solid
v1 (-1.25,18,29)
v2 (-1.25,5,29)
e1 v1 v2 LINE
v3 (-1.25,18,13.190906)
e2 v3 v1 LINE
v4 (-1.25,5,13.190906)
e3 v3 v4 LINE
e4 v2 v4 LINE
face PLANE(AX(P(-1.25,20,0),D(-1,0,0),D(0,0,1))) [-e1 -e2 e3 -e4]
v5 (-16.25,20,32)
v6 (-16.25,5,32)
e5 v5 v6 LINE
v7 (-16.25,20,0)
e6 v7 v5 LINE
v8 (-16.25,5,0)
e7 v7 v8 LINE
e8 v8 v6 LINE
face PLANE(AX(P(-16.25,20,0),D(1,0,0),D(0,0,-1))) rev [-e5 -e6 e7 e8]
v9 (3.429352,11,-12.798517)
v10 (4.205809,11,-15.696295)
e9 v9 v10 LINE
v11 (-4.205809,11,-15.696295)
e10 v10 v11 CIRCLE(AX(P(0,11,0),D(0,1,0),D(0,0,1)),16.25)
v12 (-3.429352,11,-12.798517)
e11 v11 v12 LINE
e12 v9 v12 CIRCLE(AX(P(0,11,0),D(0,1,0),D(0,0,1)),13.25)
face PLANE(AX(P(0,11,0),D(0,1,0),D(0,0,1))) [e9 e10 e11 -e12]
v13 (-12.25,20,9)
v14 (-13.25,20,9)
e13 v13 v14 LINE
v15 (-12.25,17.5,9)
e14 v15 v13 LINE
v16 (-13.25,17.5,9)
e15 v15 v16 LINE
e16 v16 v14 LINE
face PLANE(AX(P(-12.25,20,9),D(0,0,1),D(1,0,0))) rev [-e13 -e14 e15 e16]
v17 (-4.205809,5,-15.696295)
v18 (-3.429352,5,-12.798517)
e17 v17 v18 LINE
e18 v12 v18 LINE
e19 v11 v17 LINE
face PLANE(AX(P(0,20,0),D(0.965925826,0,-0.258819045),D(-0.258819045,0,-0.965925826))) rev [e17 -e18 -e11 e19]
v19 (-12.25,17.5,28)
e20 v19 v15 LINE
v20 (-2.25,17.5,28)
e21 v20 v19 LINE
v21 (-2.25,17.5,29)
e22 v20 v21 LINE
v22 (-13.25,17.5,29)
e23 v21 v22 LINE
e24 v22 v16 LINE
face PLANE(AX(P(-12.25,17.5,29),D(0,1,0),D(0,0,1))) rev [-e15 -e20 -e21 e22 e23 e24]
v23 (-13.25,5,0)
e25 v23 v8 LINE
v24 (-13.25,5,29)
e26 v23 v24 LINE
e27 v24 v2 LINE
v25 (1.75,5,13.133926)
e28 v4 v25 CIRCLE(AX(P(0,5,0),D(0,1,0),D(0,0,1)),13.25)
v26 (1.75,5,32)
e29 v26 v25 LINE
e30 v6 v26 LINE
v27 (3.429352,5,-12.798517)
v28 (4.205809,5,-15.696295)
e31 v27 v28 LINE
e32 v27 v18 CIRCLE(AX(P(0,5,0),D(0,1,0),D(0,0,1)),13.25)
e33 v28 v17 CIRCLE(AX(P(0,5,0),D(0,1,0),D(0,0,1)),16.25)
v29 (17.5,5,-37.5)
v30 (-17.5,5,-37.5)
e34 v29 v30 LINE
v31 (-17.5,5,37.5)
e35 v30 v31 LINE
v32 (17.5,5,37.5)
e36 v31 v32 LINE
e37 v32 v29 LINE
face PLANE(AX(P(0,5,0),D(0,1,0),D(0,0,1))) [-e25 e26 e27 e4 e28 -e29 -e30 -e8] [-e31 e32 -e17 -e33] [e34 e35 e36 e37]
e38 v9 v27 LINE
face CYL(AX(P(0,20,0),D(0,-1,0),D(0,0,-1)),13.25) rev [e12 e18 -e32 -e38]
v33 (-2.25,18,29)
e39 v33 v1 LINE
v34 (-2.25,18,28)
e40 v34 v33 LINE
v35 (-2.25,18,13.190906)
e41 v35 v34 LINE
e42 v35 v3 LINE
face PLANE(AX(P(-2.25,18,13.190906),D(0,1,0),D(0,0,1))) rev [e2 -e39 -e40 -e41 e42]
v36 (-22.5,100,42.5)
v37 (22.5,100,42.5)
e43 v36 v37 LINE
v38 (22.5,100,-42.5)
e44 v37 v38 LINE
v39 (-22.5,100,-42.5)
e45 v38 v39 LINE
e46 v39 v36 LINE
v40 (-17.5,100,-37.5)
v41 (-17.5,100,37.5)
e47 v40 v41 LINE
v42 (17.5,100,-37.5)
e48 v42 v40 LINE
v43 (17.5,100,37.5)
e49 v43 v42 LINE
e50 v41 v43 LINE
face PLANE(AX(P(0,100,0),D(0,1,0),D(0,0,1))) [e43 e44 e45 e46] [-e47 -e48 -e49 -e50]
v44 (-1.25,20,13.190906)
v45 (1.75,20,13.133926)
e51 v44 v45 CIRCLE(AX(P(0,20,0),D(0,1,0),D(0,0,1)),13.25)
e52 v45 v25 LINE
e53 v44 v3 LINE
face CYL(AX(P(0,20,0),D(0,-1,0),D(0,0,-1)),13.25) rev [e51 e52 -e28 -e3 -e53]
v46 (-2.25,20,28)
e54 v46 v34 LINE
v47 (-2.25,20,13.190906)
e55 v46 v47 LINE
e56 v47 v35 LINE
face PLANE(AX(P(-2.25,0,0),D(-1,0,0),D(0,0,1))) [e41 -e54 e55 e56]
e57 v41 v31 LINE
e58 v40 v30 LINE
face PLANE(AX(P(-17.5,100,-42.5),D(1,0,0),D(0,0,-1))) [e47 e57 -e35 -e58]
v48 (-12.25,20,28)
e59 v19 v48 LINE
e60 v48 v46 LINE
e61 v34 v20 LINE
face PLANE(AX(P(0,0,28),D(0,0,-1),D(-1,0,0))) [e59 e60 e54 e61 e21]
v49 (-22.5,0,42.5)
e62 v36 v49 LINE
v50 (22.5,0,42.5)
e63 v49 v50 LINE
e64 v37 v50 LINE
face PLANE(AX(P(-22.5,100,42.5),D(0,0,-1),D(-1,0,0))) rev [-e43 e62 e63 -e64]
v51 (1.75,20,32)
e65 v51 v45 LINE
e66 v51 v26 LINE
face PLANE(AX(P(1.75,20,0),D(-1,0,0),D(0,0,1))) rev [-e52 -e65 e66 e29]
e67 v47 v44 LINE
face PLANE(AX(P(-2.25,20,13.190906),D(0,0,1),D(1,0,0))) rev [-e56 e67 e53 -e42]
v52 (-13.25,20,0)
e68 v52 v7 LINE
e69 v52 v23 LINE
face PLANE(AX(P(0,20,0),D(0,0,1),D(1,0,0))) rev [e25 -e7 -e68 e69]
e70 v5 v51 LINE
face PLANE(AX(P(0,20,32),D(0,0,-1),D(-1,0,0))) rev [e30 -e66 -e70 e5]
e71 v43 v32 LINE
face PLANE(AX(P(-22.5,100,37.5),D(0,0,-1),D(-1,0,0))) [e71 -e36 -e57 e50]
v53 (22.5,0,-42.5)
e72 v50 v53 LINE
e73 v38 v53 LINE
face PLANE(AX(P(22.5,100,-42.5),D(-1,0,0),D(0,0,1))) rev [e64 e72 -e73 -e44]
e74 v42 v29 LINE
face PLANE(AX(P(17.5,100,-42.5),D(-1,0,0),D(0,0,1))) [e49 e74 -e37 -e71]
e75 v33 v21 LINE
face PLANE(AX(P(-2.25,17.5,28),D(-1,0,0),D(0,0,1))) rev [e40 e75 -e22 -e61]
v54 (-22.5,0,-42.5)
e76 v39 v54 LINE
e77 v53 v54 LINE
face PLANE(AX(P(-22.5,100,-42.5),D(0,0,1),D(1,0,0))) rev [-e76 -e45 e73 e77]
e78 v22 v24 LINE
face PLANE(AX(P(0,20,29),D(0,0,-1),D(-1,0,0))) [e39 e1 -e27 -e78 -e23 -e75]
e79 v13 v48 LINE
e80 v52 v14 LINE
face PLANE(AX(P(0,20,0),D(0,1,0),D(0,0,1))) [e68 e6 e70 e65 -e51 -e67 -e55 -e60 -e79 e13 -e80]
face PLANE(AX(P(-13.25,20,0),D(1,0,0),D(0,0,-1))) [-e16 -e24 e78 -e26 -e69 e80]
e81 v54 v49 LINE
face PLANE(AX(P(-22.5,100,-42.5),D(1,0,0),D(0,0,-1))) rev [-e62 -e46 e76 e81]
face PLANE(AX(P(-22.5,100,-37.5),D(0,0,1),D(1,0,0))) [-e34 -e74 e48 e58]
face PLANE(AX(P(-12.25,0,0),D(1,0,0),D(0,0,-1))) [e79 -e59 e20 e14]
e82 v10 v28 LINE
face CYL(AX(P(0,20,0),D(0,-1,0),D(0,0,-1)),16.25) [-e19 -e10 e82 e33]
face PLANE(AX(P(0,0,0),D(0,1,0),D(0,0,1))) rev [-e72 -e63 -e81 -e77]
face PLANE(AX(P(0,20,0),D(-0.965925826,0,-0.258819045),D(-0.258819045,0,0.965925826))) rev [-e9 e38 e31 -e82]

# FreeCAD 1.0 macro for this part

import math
import FreeCAD as App
import Part
import Sketcher
Q = App.Units.Quantity


def faces_at(feature, points):
    """Names of the faces that lie closest to the given points."""
    faces = feature.Shape.Faces
    near = lambda p: min(range(len(faces)), key=lambda i: faces[i].distToShape(Part.Vertex(*p))[0])
    return sorted({f"Face{near(p) + 1}" for p in points})


def add_polygon(sketch, points):
    """Adds a closed chain of lines whose ends are joined by coincident constraints."""
    first, n = sketch.GeometryCount, len(points)
    for a, b in zip(points, points[1:] + points[:1]):
        sketch.addGeometry(Part.LineSegment(App.Vector(*a, 0), App.Vector(*b, 0)), False)
    for i in range(n):
        sketch.addConstraint(Sketcher.Constraint("Coincident", first + i, 2, first + (i + 1) % n, 1))

doc = App.newDocument("Part")
params = doc.addObject("Spreadsheet::Sheet", "Params")
for row, (alias, value) in enumerate([
    ("sketch1_width", "45 mm"),
    ("sketch1_height", "85 mm"),
    ("pad1_length", "100 mm"),
    ("thickness_wall", "5 mm"),
    ("sketch2_width", "3 mm"),
    ("sketch2_width2", "18 mm"),
    ("sketch2_width3", "12 mm"),
    ("sketch2_height", "29 mm"),
    ("sketch2_height2", "32 mm"),
    ("pad2_length", "15 mm"),
    ("sketch3_height", "20 mm"),
    ("sketch3_width", "2.5 mm"),
    ("pad3_length", "1 mm"),
    ("sketch4_width", "2 mm"),
    ("pad4_length", "1 mm"),
    ("sketch5_width", "10 mm"),
    ("sketch5_height", "2.5 mm"),
    ("pad5_length", "1 mm"),
    ("pocket1_length", "9 mm"),
], start=1):
    params.set(f"A{row}", alias)
    params.set(f"B{row}", "=" + value)
    params.setAlias(f"B{row}", alias)

body = doc.addObject("PartDesign::Body", "Body")

# Sketch on XZ plane
sketch1 = doc.addObject("Sketcher::SketchObject", "Sketch")
body.addObject(sketch1)
sketch1.AttachmentSupport = (doc.XZ_Plane, [""])
sketch1.MapMode = "FlatFace"
add_polygon(sketch1, [(-22, -42), (-22, 42), (22, 42), (22, -42)])  # lines 0-3
sketch1.addConstraint(Sketcher.Constraint("Vertical", 0))
sketch1.addConstraint(Sketcher.Constraint("Horizontal", 1))
sketch1.addConstraint(Sketcher.Constraint("Vertical", 2))
sketch1.addConstraint(Sketcher.Constraint("Horizontal", 3))
sketch1.addConstraint(Sketcher.Constraint("Symmetric", 0, 2, 2, 2, -1, 1))
sketch1.addConstraint(Sketcher.Constraint("DistanceX", 1, 1, 1, 2, Q("45 mm")))
sketch1.addConstraint(Sketcher.Constraint("DistanceY", 0, 1, 0, 2, Q("85 mm")))
sketch1.setExpression("Constraints[9]", "Params.sketch1_width")
sketch1.setExpression("Constraints[10]", "Params.sketch1_height")
pad1 = doc.addObject("PartDesign::Pad", "Pad")
body.addObject(pad1)
pad1.Profile = sketch1
pad1.setExpression("Length", "Params.pad1_length")
pad1.Reversed = True
doc.recompute()

thickness = doc.addObject("PartDesign::Thickness", "Thickness")
body.addObject(thickness)
thickness.Base = (pad1, faces_at(pad1, [(0, 100, 0)]))
thickness.setExpression("Value", "Params.thickness_wall")
thickness.Reversed = True
thickness.Join = "Intersection"

# Sketch on XZ plane
sketch2 = doc.addObject("Sketcher::SketchObject", "Sketch001")
body.addObject(sketch2)
sketch2.AttachmentSupport = (doc.XZ_Plane, [""])
sketch2.MapMode = "FlatFace"
sketch2.AttachmentOffset = App.Placement(App.Vector(0, 0, -5), App.Rotation())
sketch2.addGeometry(Part.LineSegment(App.Vector(-13.2, 29, 0), App.Vector(-13.2, 0, 0)), False)
sketch2.addGeometry(Part.LineSegment(App.Vector(-13.2, 0, 0), App.Vector(-16.2, 0, 0)), False)
sketch2.addGeometry(Part.LineSegment(App.Vector(-16.2, 0, 0), App.Vector(-16.2, 32, 0)), False)
sketch2.addGeometry(Part.LineSegment(App.Vector(-16.2, 32, 0), App.Vector(1.8, 32, 0)), False)
sketch2.addGeometry(Part.LineSegment(App.Vector(1.8, 32, 0), App.Vector(1.8, 13.1, 0)), False)
sketch2.addGeometry(Part.ArcOfCircle(Part.Circle(App.Vector(0, 0, 0), App.Vector(0, 0, 1), 13.3), math.radians(82.41), math.radians(95.41)), False)
sketch2.addGeometry(Part.LineSegment(App.Vector(-1.2, 13.2, 0), App.Vector(-1.2, 29, 0)), False)
sketch2.addGeometry(Part.LineSegment(App.Vector(-1.2, 29, 0), App.Vector(-13.2, 29, 0)), False)
sketch2.addGeometry(Part.LineSegment(App.Vector(-4.2, -15.7, 0), App.Vector(-3.4, -12.8, 0)), False)
sketch2.addGeometry(Part.ArcOfCircle(Part.Circle(App.Vector(0, 0, 0), App.Vector(0, 0, 1), 13.2), math.radians(-105), math.radians(-75)), False)
sketch2.addGeometry(Part.LineSegment(App.Vector(3.4, -12.8, 0), App.Vector(4.2, -15.7, 0)), False)
sketch2.addGeometry(Part.ArcOfCircle(Part.Circle(App.Vector(0, 0, 0), App.Vector(0, 0, 1), 16.2), math.radians(-105), math.radians(-75)), False)
sketch2.addConstraint(Sketcher.Constraint("Coincident", 0, 2, 1, 1))
sketch2.addConstraint(Sketcher.Constraint("Coincident", 1, 2, 2, 1))
sketch2.addConstraint(Sketcher.Constraint("Coincident", 2, 2, 3, 1))
sketch2.addConstraint(Sketcher.Constraint("Coincident", 3, 2, 4, 1))
sketch2.addConstraint(Sketcher.Constraint("Coincident", 4, 2, 5, 1))
sketch2.addConstraint(Sketcher.Constraint("Coincident", 5, 2, 6, 1))
sketch2.addConstraint(Sketcher.Constraint("Coincident", 6, 2, 7, 1))
sketch2.addConstraint(Sketcher.Constraint("Coincident", 7, 2, 0, 1))
sketch2.addConstraint(Sketcher.Constraint("Coincident", 8, 2, 9, 1))
sketch2.addConstraint(Sketcher.Constraint("Coincident", 9, 2, 10, 1))
sketch2.addConstraint(Sketcher.Constraint("Coincident", 10, 2, 11, 2))
sketch2.addConstraint(Sketcher.Constraint("Coincident", 11, 1, 8, 1))
sketch2.addConstraint(Sketcher.Constraint("Vertical", 0))
sketch2.addConstraint(Sketcher.Constraint("Horizontal", 1))
sketch2.addConstraint(Sketcher.Constraint("Vertical", 2))
sketch2.addConstraint(Sketcher.Constraint("Horizontal", 3))
sketch2.addConstraint(Sketcher.Constraint("Vertical", 4))
sketch2.addConstraint(Sketcher.Constraint("Vertical", 6))
sketch2.addConstraint(Sketcher.Constraint("Horizontal", 7))
sketch2.addConstraint(Sketcher.Constraint("Coincident", 5, 3, -1, 1))
sketch2.addConstraint(Sketcher.Constraint("Coincident", 9, 3, -1, 1))
sketch2.addConstraint(Sketcher.Constraint("Coincident", 11, 3, -1, 1))
sketch2.addConstraint(Sketcher.Constraint("Equal", 5, 9))
sketch2.addConstraint(Sketcher.Constraint("PointOnObject", 0, 2, -1))
sketch2.addConstraint(Sketcher.Constraint("Horizontal", 8, 2, 9, 2))
sketch2.addConstraint(Sketcher.Constraint("Horizontal", 10, 2, 11, 1))
sketch2.addConstraint(Sketcher.Constraint("DistanceX", 1, 2, 1, 1, Q("3 mm")))
sketch2.addConstraint(Sketcher.Constraint("DistanceX", 3, 1, 3, 2, Q("18 mm")))
sketch2.addConstraint(Sketcher.Constraint("DistanceX", 7, 2, 7, 1, Q("12 mm")))
sketch2.addConstraint(Sketcher.Constraint("DistanceY", 0, 2, 0, 1, Q("29 mm")))
sketch2.addConstraint(Sketcher.Constraint("DistanceY", 2, 1, 2, 2, Q("32 mm")))
sketch2.addConstraint(Sketcher.Constraint("Angle", 8, Q("75 deg")))
sketch2.addConstraint(Sketcher.Constraint("Radius", 5, Q("13.25 mm")))
sketch2.addConstraint(Sketcher.Constraint("Radius", 11, Q("16.25 mm")))
sketch2.addConstraint(Sketcher.Constraint("DistanceX", 0, 2, -1, 1, Q("13.25 mm")))
sketch2.addConstraint(Sketcher.Constraint("DistanceX", -1, 1, 10, 2, Q("4.205809 mm")))
sketch2.setExpression("Constraints[26]", "Params.sketch2_width")
sketch2.setExpression("Constraints[27]", "Params.sketch2_width2")
sketch2.setExpression("Constraints[28]", "Params.sketch2_width3")
sketch2.setExpression("Constraints[29]", "Params.sketch2_height")
sketch2.setExpression("Constraints[30]", "Params.sketch2_height2")
pad2 = doc.addObject("PartDesign::Pad", "Pad001")
body.addObject(pad2)
pad2.Profile = sketch2
pad2.setExpression("Length", "Params.pad2_length")
pad2.Reversed = True

# Sketch on YZ plane
sketch3 = doc.addObject("Sketcher::SketchObject", "Sketch002")
body.addObject(sketch3)
sketch3.AttachmentSupport = (doc.YZ_Plane, [""])
sketch3.MapMode = "FlatFace"
sketch3.AttachmentOffset = App.Placement(App.Vector(0, 0, -13.25), App.Rotation())
add_polygon(sketch3, [(20, 29), (17.5, 29), (17.5, 9), (20, 9)])  # lines 0-3
sketch3.addConstraint(Sketcher.Constraint("Horizontal", 0))
sketch3.addConstraint(Sketcher.Constraint("Vertical", 1))
sketch3.addConstraint(Sketcher.Constraint("Horizontal", 2))
sketch3.addConstraint(Sketcher.Constraint("Vertical", 3))
sketch3.addConstraint(Sketcher.Constraint("DistanceY", 1, 2, 1, 1, Q("20 mm")))
sketch3.addConstraint(Sketcher.Constraint("DistanceX", 0, 2, 0, 1, Q("2.5 mm")))
sketch3.addConstraint(Sketcher.Constraint("DistanceY", -1, 1, 0, 2, Q("29 mm")))
sketch3.addConstraint(Sketcher.Constraint("DistanceX", -1, 1, 2, 2, Q("20 mm")))
sketch3.setExpression("Constraints[8]", "Params.sketch3_height")
sketch3.setExpression("Constraints[9]", "Params.sketch3_width")
pad3 = doc.addObject("PartDesign::Pad", "Pad002")
body.addObject(pad3)
pad3.Profile = sketch3
pad3.setExpression("Length", "Params.pad3_length")

# Sketch on YZ plane
sketch4 = doc.addObject("Sketcher::SketchObject", "Sketch003")
body.addObject(sketch4)
sketch4.AttachmentSupport = (doc.YZ_Plane, [""])
sketch4.MapMode = "FlatFace"
sketch4.AttachmentOffset = App.Placement(App.Vector(0, 0, -1.25), App.Rotation())
add_polygon(sketch4, [(20, 13.2), (18, 13.2), (18, 29), (20, 29)])  # lines 0-3
sketch4.addConstraint(Sketcher.Constraint("Horizontal", 0))
sketch4.addConstraint(Sketcher.Constraint("Vertical", 1))
sketch4.addConstraint(Sketcher.Constraint("Horizontal", 2))
sketch4.addConstraint(Sketcher.Constraint("Vertical", 3))
sketch4.addConstraint(Sketcher.Constraint("DistanceX", 0, 2, 0, 1, Q("2 mm")))
sketch4.addConstraint(Sketcher.Constraint("DistanceX", -1, 1, 0, 2, Q("18 mm")))
sketch4.addConstraint(Sketcher.Constraint("DistanceY", -1, 1, 1, 2, Q("29 mm")))
sketch4.addConstraint(Sketcher.Constraint("DistanceY", 1, 1, 1, 2, Q("15.809094 mm")))
sketch4.setExpression("Constraints[8]", "Params.sketch4_width")
pad4 = doc.addObject("PartDesign::Pad", "Pad003")
body.addObject(pad4)
pad4.Profile = sketch4
pad4.setExpression("Length", "Params.pad4_length")
pad4.Reversed = True

# Sketch on XY plane
sketch5 = doc.addObject("Sketcher::SketchObject", "Sketch004")
body.addObject(sketch5)
sketch5.AttachmentSupport = (doc.XY_Plane, [""])
sketch5.MapMode = "FlatFace"
sketch5.AttachmentOffset = App.Placement(App.Vector(0, 0, 29), App.Rotation())
add_polygon(sketch5, [(-2.2, 20), (-2.2, 17.5), (-12.2, 17.5), (-12.2, 20)])  # lines 0-3
sketch5.addConstraint(Sketcher.Constraint("Vertical", 0))
sketch5.addConstraint(Sketcher.Constraint("Horizontal", 1))
sketch5.addConstraint(Sketcher.Constraint("Vertical", 2))
sketch5.addConstraint(Sketcher.Constraint("Horizontal", 3))
sketch5.addConstraint(Sketcher.Constraint("DistanceX", 1, 2, 1, 1, Q("10 mm")))
sketch5.addConstraint(Sketcher.Constraint("DistanceY", 0, 2, 0, 1, Q("2.5 mm")))
sketch5.addConstraint(Sketcher.Constraint("DistanceY", -1, 1, 2, 2, Q("20 mm")))
sketch5.addConstraint(Sketcher.Constraint("DistanceX", 0, 2, -1, 1, Q("2.25 mm")))
sketch5.setExpression("Constraints[8]", "Params.sketch5_width")
sketch5.setExpression("Constraints[9]", "Params.sketch5_height")
pad5 = doc.addObject("PartDesign::Pad", "Pad004")
body.addObject(pad5)
pad5.Profile = sketch5
pad5.setExpression("Length", "Params.pad5_length")
pad5.Reversed = True

# Sketch on XZ plane
sketch6 = doc.addObject("Sketcher::SketchObject", "Sketch005")
body.addObject(sketch6)
sketch6.AttachmentSupport = (doc.XZ_Plane, [""])
sketch6.MapMode = "FlatFace"
sketch6.AttachmentOffset = App.Placement(App.Vector(0, 0, -20), App.Rotation())
add_polygon(sketch6, [(-5, -17), (-5, -11), (5, -11), (5, -17)])  # lines 0-3
sketch6.addConstraint(Sketcher.Constraint("Vertical", 0))
sketch6.addConstraint(Sketcher.Constraint("Horizontal", 1))
sketch6.addConstraint(Sketcher.Constraint("Vertical", 2))
sketch6.addConstraint(Sketcher.Constraint("Horizontal", 3))
sketch6.addConstraint(Sketcher.Constraint("DistanceX", 1, 1, 1, 2, Q("10.477528 mm")))
sketch6.addConstraint(Sketcher.Constraint("DistanceY", 0, 1, 0, 2, Q("6.322646 mm")))
sketch6.addConstraint(Sketcher.Constraint("DistanceX", -1, 1, 1, 2, Q("5.402262 mm")))
sketch6.addConstraint(Sketcher.Constraint("DistanceY", 2, 2, -1, 1, Q("17.37767 mm")))
pocket1 = doc.addObject("PartDesign::Pocket", "Pocket")
body.addObject(pocket1)
pocket1.Profile = sketch6
pocket1.setExpression("Length", "Params.pocket1_length")
pocket1.Reversed = True

doc.recompute()
